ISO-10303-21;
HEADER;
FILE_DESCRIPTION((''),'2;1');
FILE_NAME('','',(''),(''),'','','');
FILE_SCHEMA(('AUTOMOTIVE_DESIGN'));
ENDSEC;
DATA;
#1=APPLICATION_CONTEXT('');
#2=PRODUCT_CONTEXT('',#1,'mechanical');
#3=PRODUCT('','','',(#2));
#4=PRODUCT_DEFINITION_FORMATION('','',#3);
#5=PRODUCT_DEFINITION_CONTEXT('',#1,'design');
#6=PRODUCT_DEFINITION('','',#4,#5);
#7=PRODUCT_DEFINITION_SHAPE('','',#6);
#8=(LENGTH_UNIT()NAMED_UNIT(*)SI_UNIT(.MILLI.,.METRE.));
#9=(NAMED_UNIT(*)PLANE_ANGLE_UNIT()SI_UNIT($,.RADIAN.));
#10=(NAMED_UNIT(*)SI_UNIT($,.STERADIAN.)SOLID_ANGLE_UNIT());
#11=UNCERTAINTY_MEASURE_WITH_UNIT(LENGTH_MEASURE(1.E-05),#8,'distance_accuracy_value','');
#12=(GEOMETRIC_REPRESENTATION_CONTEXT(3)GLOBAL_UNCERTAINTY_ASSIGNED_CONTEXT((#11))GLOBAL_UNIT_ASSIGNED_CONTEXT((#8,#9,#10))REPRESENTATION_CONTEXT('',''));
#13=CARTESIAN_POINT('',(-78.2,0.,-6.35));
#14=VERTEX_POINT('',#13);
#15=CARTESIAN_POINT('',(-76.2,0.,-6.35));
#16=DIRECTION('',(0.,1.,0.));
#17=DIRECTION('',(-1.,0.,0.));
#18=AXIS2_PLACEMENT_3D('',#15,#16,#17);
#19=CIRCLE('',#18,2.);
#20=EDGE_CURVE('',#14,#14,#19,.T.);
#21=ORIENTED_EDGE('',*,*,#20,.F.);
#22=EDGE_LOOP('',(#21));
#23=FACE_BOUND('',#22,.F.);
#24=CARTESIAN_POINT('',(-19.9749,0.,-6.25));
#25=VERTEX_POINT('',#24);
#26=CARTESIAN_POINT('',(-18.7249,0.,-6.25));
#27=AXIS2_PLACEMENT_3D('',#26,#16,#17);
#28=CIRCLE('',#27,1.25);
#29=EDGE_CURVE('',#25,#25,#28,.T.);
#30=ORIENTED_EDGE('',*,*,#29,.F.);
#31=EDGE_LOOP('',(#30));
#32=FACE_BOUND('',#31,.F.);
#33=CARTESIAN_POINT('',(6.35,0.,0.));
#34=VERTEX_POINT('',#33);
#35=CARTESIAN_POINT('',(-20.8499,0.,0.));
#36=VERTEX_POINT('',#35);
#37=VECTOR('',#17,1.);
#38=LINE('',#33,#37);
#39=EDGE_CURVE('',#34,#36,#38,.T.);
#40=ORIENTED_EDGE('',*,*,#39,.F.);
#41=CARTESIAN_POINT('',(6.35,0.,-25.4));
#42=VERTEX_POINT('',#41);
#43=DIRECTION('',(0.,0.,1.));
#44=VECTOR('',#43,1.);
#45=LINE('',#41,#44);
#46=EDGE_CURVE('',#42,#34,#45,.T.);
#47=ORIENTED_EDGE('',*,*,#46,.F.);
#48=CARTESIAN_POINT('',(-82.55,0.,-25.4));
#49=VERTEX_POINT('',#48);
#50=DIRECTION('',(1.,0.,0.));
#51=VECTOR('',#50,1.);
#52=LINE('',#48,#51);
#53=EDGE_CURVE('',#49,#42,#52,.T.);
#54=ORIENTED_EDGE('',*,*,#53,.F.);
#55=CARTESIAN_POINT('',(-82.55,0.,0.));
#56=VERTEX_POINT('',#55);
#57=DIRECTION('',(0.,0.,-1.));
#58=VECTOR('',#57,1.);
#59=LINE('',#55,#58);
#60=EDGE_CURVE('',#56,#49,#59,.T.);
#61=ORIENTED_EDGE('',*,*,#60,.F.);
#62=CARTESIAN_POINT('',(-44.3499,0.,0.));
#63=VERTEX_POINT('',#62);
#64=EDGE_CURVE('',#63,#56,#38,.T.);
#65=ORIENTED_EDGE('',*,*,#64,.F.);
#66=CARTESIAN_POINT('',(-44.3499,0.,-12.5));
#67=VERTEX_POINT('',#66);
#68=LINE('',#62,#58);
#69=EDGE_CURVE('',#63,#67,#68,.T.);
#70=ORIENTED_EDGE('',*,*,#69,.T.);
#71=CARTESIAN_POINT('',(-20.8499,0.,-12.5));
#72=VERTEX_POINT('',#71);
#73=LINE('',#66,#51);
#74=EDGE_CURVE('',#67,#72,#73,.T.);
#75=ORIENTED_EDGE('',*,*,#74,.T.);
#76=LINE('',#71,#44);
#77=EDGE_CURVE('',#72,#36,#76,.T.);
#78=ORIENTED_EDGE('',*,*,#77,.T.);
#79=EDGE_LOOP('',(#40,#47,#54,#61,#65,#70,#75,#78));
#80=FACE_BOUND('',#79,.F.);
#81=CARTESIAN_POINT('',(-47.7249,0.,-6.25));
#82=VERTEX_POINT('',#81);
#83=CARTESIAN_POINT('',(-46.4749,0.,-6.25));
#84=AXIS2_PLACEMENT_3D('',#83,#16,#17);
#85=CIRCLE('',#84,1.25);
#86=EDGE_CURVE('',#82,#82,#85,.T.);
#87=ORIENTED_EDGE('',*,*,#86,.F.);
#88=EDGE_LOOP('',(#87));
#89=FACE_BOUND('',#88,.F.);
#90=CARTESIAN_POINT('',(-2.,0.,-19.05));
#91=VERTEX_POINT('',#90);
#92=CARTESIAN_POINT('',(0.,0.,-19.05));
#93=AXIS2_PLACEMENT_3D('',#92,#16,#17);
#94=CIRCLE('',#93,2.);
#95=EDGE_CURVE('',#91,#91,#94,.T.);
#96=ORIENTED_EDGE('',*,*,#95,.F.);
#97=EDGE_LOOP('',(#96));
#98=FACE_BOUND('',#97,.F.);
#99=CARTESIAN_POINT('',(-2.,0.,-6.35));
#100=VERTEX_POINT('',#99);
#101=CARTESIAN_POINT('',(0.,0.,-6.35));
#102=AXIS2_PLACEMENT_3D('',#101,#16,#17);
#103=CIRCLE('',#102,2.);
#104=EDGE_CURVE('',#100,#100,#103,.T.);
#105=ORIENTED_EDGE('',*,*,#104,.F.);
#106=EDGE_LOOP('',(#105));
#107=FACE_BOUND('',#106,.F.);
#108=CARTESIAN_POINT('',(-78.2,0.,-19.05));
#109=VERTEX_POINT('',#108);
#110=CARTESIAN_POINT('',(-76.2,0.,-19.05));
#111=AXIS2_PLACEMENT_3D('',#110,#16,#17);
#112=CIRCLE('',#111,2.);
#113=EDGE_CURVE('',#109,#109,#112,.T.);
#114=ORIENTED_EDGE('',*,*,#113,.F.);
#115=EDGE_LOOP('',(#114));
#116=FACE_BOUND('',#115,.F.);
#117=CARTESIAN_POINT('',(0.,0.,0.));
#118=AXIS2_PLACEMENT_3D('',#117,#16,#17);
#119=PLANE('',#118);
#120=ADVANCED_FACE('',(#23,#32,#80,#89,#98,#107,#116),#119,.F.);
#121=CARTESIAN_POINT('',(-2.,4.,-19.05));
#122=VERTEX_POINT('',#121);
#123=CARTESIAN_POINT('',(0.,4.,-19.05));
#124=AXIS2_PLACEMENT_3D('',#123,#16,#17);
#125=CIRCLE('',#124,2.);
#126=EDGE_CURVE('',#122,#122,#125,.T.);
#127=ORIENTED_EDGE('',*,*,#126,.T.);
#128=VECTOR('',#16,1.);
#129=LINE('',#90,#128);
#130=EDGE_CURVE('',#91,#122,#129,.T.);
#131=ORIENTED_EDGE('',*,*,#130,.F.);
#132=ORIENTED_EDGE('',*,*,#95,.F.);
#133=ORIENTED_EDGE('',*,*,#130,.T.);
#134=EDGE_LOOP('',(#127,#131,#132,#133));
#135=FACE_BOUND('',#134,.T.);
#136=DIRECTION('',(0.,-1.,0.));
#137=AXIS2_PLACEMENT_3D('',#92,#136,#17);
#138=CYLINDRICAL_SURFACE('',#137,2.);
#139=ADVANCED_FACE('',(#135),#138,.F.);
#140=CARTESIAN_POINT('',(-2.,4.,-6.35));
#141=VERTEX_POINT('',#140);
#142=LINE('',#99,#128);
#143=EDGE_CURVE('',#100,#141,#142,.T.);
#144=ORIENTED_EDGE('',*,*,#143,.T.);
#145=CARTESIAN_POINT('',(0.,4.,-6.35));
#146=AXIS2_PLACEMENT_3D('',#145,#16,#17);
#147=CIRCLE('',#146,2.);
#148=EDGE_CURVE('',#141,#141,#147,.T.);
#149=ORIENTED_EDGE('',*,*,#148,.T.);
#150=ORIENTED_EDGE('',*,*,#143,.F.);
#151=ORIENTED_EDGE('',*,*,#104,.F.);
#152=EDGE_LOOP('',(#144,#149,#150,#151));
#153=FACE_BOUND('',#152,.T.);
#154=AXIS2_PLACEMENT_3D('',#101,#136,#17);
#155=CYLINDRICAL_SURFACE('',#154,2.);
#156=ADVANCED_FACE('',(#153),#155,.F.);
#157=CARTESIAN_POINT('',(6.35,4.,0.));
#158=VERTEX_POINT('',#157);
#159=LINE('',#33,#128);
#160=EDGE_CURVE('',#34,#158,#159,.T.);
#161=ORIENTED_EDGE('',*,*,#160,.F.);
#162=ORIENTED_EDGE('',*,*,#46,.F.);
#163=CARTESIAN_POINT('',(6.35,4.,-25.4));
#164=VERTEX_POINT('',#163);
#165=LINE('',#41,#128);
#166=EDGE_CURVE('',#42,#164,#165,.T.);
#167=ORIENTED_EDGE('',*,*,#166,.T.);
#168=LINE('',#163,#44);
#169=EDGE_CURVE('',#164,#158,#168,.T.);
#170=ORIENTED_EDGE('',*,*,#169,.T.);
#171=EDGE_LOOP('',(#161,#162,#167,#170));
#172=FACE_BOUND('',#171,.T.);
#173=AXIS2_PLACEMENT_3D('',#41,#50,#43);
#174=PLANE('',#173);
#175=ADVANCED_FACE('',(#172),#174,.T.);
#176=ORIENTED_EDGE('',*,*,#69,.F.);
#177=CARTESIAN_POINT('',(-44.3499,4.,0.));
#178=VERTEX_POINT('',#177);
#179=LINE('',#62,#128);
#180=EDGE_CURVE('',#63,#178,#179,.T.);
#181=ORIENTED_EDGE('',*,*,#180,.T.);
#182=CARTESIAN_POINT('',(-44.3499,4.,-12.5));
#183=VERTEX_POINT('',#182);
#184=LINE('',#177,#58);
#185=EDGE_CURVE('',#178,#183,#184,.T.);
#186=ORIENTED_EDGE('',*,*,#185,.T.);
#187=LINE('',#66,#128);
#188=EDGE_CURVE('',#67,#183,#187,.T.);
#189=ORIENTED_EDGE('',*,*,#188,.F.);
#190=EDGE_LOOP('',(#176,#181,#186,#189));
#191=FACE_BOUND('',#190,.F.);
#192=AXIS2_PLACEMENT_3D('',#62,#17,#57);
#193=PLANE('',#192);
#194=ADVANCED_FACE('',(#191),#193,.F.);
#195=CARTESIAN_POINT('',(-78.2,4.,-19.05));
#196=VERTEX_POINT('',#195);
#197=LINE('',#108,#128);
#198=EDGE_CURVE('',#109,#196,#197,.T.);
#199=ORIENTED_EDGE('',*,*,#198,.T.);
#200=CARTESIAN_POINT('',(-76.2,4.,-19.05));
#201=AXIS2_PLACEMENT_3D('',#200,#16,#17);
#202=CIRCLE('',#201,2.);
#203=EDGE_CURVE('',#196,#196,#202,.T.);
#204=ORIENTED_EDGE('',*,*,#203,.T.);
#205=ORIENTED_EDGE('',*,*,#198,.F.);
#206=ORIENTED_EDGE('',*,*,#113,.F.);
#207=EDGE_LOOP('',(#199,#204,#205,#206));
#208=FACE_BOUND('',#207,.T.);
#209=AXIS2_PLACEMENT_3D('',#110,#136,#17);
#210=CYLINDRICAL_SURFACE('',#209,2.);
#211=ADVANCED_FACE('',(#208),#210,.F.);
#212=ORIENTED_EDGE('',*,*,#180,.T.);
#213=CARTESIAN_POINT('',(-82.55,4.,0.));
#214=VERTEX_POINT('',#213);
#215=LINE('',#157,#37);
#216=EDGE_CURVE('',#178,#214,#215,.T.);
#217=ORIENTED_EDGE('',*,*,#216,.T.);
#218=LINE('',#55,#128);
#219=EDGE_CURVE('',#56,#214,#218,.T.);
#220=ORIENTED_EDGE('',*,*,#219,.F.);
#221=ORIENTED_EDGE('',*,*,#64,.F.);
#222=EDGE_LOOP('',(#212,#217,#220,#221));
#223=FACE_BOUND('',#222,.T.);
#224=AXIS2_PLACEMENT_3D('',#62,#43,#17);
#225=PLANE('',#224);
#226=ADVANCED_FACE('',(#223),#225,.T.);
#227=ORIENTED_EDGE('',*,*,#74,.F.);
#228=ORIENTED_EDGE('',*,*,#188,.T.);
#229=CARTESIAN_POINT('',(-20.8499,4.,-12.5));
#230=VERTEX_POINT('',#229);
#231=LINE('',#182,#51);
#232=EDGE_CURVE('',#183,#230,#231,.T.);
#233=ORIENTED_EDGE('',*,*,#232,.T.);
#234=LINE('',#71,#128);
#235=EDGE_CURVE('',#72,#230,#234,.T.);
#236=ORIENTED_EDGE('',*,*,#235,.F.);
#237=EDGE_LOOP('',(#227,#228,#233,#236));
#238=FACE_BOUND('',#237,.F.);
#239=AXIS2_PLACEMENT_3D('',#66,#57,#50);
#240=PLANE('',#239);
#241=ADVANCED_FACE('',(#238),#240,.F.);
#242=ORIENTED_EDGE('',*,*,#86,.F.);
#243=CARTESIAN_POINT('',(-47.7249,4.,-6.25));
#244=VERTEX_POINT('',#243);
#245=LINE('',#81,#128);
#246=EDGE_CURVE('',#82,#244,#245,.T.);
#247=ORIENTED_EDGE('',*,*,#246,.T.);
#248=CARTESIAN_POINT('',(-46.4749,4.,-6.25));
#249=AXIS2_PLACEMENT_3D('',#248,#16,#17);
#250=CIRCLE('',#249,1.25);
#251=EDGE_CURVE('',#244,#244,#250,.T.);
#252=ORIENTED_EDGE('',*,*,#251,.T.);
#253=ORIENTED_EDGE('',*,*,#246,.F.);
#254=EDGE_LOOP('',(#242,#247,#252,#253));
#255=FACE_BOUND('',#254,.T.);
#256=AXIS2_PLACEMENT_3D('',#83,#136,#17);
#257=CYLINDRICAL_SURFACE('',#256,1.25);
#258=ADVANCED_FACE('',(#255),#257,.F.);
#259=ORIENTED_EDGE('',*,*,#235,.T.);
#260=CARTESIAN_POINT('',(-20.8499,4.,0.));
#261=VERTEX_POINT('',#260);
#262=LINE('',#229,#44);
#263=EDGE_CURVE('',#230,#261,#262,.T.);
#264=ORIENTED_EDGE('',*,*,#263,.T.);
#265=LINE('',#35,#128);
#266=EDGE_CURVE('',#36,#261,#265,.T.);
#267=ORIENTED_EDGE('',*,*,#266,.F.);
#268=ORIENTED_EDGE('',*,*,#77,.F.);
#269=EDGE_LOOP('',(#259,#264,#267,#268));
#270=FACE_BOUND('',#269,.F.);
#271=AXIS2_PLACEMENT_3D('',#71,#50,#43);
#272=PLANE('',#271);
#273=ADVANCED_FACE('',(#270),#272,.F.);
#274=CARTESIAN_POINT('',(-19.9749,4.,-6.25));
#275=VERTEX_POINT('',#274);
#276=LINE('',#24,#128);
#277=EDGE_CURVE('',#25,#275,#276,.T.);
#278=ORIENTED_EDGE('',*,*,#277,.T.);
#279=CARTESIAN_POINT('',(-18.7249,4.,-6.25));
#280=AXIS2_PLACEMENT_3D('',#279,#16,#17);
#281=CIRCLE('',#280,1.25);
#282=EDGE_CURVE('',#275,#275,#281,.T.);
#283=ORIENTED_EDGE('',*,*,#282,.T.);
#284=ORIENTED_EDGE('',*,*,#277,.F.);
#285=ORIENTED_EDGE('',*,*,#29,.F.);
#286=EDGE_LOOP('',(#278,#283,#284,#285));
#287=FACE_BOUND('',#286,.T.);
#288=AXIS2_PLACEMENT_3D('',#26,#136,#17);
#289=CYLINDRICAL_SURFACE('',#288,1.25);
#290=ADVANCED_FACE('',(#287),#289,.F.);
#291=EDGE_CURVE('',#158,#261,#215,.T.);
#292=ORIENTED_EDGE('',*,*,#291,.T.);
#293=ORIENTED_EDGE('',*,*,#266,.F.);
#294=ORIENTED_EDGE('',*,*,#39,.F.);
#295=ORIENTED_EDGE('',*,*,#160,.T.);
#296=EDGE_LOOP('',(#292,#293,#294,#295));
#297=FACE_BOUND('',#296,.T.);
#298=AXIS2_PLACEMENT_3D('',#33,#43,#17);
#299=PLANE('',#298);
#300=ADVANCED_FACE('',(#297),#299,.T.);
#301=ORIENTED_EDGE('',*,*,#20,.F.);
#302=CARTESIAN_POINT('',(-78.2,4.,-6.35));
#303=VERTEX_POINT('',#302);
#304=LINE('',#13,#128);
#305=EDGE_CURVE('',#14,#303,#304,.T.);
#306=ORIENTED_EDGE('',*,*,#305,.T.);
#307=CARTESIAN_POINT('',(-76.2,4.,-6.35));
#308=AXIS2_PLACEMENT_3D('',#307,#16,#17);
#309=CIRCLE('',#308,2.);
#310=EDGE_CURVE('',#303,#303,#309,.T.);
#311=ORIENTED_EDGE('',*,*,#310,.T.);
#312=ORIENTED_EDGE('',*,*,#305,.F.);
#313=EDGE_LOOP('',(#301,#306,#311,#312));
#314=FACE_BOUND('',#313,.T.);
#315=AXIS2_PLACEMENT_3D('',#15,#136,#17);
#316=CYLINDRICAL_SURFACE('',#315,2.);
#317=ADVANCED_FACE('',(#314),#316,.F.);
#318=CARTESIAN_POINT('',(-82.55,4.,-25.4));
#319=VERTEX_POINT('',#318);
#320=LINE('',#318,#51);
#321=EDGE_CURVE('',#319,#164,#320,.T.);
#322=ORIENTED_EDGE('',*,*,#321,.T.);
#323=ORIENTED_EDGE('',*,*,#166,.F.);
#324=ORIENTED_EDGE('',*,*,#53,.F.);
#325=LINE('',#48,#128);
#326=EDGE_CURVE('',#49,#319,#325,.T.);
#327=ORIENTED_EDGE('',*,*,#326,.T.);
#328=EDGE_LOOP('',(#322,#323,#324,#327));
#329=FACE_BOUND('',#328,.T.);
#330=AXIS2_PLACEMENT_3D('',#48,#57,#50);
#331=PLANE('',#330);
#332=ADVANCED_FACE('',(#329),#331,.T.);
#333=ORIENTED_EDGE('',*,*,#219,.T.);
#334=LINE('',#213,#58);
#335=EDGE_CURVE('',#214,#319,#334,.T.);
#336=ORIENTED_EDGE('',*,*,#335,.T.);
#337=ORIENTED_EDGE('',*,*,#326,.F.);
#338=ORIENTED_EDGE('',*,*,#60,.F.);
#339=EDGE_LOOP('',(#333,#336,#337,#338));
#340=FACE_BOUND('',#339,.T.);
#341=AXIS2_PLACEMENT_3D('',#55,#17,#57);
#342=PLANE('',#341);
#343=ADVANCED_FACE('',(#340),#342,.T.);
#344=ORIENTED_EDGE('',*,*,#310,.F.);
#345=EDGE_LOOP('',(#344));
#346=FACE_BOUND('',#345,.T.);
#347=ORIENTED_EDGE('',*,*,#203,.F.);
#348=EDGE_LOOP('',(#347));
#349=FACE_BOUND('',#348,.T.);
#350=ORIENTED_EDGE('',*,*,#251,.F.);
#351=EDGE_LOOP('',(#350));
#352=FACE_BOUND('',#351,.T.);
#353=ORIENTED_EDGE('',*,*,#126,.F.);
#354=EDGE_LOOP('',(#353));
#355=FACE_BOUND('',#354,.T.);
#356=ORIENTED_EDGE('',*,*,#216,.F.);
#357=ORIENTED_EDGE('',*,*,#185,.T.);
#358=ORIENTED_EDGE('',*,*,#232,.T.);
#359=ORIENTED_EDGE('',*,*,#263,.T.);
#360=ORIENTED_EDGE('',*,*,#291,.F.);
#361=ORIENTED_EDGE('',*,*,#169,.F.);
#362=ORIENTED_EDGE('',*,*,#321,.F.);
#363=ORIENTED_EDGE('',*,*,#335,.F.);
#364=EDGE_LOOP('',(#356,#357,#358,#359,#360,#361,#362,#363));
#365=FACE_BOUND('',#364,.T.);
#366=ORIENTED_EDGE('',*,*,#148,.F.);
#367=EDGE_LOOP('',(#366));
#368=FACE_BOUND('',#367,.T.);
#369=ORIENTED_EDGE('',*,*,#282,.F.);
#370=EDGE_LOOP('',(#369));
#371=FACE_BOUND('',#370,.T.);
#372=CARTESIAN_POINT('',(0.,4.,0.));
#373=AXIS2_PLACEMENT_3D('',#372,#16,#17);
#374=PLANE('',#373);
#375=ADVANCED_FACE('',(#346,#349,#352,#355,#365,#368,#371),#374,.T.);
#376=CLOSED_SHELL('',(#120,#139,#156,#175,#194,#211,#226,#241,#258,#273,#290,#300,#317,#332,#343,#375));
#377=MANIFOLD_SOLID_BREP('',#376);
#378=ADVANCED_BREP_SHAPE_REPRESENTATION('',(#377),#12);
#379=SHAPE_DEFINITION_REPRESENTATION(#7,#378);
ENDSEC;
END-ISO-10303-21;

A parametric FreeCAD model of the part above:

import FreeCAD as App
import Part
import Sketcher
Q = App.Units.Quantity

doc = App.newDocument("Part")
body = doc.addObject("PartDesign::Body", "Body")

# Sketch on XZ plane
sketch1 = body.newObject("Sketcher::SketchObject", "Sketch")
sketch1.AttachmentSupport = (doc.getObject("XZ_Plane"), [""])
sketch1.MapMode = "FlatFace"
sketch1.addGeometry(Part.LineSegment(App.Vector(-20.8499, 0, 0), App.Vector(6.35, 0, 0)), False)
sketch1.addGeometry(Part.LineSegment(App.Vector(6.35, 0, 0), App.Vector(6.35, -25.4, 0)), False)
sketch1.addGeometry(Part.LineSegment(App.Vector(6.35, -25.4, 0), App.Vector(-82.55, -25.4, 0)), False)
sketch1.addGeometry(Part.LineSegment(App.Vector(-82.55, -25.4, 0), App.Vector(-82.55, 0, 0)), False)
sketch1.addGeometry(Part.LineSegment(App.Vector(-82.55, 0, 0), App.Vector(-44.3499, 0, 0)), False)
sketch1.addGeometry(Part.LineSegment(App.Vector(-44.3499, 0, 0), App.Vector(-44.3499, -12.5, 0)), False)
sketch1.addGeometry(Part.LineSegment(App.Vector(-44.3499, -12.5, 0), App.Vector(-20.8499, -12.5, 0)), False)
sketch1.addGeometry(Part.LineSegment(App.Vector(-20.8499, -12.5, 0), App.Vector(-20.8499, 0, 0)), False)
sketch1.addGeometry(Part.Circle(App.Vector(0, -19.05, 0), App.Vector(0, 0, 1), 2), False)
sketch1.addGeometry(Part.Circle(App.Vector(-76.2, -19.05, 0), App.Vector(0, 0, 1), 2), False)
sketch1.addGeometry(Part.Circle(App.Vector(0, -6.35, 0), App.Vector(0, 0, 1), 2), False)
sketch1.addGeometry(Part.Circle(App.Vector(-18.7249, -6.25, 0), App.Vector(0, 0, 1), 1.25), False)
sketch1.addGeometry(Part.Circle(App.Vector(-76.2, -6.35, 0), App.Vector(0, 0, 1), 2), False)
sketch1.addGeometry(Part.Circle(App.Vector(-46.4749, -6.25, 0), App.Vector(0, 0, 1), 1.25), False)
sketch1.addConstraint(Sketcher.Constraint("Coincident", 0, 2, 1, 1))
sketch1.addConstraint(Sketcher.Constraint("Coincident", 1, 2, 2, 1))
sketch1.addConstraint(Sketcher.Constraint("Coincident", 2, 2, 3, 1))
sketch1.addConstraint(Sketcher.Constraint("Coincident", 3, 2, 4, 1))
sketch1.addConstraint(Sketcher.Constraint("Coincident", 4, 2, 5, 1))
sketch1.addConstraint(Sketcher.Constraint("Coincident", 5, 2, 6, 1))
sketch1.addConstraint(Sketcher.Constraint("Coincident", 6, 2, 7, 1))
sketch1.addConstraint(Sketcher.Constraint("Coincident", 7, 2, 0, 1))
sketch1.addConstraint(Sketcher.Constraint("Horizontal", 0))
sketch1.addConstraint(Sketcher.Constraint("Vertical", 1))
sketch1.addConstraint(Sketcher.Constraint("Horizontal", 2))
sketch1.addConstraint(Sketcher.Constraint("Vertical", 3))
sketch1.addConstraint(Sketcher.Constraint("Horizontal", 4))
sketch1.addConstraint(Sketcher.Constraint("Vertical", 5))
sketch1.addConstraint(Sketcher.Constraint("Horizontal", 6))
sketch1.addConstraint(Sketcher.Constraint("Vertical", 7))
sketch1.addConstraint(Sketcher.Constraint("Equal", 8, 9))
sketch1.addConstraint(Sketcher.Constraint("Equal", 9, 10))
sketch1.addConstraint(Sketcher.Constraint("Equal", 10, 12))
sketch1.addConstraint(Sketcher.Constraint("Equal", 11, 13))
sketch1.addConstraint(Sketcher.Constraint("PointOnObject", 8, 3, -2))
sketch1.addConstraint(Sketcher.Constraint("PointOnObject", 10, 3, -2))
sketch1.addConstraint(Sketcher.Constraint("PointOnObject", 0, 2, -1))
sketch1.addConstraint(Sketcher.Constraint("PointOnObject", 3, 2, -1))
sketch1.addConstraint(Sketcher.Constraint("Horizontal", 8, 3, 9, 3))
sketch1.addConstraint(Sketcher.Constraint("Horizontal", 10, 3, 12, 3))
sketch1.addConstraint(Sketcher.Constraint("Horizontal", 11, 3, 13, 3))
sketch1.addConstraint(Sketcher.Constraint("Vertical", 9, 3, 12, 3))
sketch1.addConstraint(Sketcher.Constraint("Diameter", 8, Q("4 mm")))
sketch1.addConstraint(Sketcher.Constraint("Diameter", 11, Q("2.5 mm")))
sketch1.addConstraint(Sketcher.Constraint("DistanceX", 2, 2, 2, 1, Q("88.9 mm")))
sketch1.addConstraint(Sketcher.Constraint("DistanceX", 6, 1, 6, 2, Q("23.5 mm")))
sketch1.addConstraint(Sketcher.Constraint("DistanceY", 1, 2, 1, 1, Q("25.4 mm")))
sketch1.addConstraint(Sketcher.Constraint("DistanceY", 5, 2, 5, 1, Q("12.5 mm")))
sketch1.addConstraint(Sketcher.Constraint("DistanceX", 9, 3, -1, 1, Q("76.2 mm")))
sketch1.addConstraint(Sketcher.Constraint("DistanceY", 8, 3, 10, 3, Q("12.7 mm")))
sketch1.addConstraint(Sketcher.Constraint("DistanceY", 10, 3, -1, 1, Q("6.35 mm")))
sketch1.addConstraint(Sketcher.Constraint("DistanceX", -1, 1, 0, 2, Q("6.35 mm")))
sketch1.addConstraint(Sketcher.Constraint("DistanceX", 0, 1, 0, 2, Q("27.2 mm")))
sketch1.addConstraint(Sketcher.Constraint("DistanceY", 10, 3, 11, 3, Q("0.1 mm")))
sketch1.addConstraint(Sketcher.Constraint("DistanceX", 13, 3, 11, 3, Q("27.75 mm")))
sketch1.addConstraint(Sketcher.Constraint("DistanceX", 11, 3, -1, 1, Q("18.725 mm")))
pad1 = body.newObject("PartDesign::Pad", "Pad")
pad1.Profile = sketch1
pad1.Length = 4
pad1.Reversed = True

doc.recompute()
